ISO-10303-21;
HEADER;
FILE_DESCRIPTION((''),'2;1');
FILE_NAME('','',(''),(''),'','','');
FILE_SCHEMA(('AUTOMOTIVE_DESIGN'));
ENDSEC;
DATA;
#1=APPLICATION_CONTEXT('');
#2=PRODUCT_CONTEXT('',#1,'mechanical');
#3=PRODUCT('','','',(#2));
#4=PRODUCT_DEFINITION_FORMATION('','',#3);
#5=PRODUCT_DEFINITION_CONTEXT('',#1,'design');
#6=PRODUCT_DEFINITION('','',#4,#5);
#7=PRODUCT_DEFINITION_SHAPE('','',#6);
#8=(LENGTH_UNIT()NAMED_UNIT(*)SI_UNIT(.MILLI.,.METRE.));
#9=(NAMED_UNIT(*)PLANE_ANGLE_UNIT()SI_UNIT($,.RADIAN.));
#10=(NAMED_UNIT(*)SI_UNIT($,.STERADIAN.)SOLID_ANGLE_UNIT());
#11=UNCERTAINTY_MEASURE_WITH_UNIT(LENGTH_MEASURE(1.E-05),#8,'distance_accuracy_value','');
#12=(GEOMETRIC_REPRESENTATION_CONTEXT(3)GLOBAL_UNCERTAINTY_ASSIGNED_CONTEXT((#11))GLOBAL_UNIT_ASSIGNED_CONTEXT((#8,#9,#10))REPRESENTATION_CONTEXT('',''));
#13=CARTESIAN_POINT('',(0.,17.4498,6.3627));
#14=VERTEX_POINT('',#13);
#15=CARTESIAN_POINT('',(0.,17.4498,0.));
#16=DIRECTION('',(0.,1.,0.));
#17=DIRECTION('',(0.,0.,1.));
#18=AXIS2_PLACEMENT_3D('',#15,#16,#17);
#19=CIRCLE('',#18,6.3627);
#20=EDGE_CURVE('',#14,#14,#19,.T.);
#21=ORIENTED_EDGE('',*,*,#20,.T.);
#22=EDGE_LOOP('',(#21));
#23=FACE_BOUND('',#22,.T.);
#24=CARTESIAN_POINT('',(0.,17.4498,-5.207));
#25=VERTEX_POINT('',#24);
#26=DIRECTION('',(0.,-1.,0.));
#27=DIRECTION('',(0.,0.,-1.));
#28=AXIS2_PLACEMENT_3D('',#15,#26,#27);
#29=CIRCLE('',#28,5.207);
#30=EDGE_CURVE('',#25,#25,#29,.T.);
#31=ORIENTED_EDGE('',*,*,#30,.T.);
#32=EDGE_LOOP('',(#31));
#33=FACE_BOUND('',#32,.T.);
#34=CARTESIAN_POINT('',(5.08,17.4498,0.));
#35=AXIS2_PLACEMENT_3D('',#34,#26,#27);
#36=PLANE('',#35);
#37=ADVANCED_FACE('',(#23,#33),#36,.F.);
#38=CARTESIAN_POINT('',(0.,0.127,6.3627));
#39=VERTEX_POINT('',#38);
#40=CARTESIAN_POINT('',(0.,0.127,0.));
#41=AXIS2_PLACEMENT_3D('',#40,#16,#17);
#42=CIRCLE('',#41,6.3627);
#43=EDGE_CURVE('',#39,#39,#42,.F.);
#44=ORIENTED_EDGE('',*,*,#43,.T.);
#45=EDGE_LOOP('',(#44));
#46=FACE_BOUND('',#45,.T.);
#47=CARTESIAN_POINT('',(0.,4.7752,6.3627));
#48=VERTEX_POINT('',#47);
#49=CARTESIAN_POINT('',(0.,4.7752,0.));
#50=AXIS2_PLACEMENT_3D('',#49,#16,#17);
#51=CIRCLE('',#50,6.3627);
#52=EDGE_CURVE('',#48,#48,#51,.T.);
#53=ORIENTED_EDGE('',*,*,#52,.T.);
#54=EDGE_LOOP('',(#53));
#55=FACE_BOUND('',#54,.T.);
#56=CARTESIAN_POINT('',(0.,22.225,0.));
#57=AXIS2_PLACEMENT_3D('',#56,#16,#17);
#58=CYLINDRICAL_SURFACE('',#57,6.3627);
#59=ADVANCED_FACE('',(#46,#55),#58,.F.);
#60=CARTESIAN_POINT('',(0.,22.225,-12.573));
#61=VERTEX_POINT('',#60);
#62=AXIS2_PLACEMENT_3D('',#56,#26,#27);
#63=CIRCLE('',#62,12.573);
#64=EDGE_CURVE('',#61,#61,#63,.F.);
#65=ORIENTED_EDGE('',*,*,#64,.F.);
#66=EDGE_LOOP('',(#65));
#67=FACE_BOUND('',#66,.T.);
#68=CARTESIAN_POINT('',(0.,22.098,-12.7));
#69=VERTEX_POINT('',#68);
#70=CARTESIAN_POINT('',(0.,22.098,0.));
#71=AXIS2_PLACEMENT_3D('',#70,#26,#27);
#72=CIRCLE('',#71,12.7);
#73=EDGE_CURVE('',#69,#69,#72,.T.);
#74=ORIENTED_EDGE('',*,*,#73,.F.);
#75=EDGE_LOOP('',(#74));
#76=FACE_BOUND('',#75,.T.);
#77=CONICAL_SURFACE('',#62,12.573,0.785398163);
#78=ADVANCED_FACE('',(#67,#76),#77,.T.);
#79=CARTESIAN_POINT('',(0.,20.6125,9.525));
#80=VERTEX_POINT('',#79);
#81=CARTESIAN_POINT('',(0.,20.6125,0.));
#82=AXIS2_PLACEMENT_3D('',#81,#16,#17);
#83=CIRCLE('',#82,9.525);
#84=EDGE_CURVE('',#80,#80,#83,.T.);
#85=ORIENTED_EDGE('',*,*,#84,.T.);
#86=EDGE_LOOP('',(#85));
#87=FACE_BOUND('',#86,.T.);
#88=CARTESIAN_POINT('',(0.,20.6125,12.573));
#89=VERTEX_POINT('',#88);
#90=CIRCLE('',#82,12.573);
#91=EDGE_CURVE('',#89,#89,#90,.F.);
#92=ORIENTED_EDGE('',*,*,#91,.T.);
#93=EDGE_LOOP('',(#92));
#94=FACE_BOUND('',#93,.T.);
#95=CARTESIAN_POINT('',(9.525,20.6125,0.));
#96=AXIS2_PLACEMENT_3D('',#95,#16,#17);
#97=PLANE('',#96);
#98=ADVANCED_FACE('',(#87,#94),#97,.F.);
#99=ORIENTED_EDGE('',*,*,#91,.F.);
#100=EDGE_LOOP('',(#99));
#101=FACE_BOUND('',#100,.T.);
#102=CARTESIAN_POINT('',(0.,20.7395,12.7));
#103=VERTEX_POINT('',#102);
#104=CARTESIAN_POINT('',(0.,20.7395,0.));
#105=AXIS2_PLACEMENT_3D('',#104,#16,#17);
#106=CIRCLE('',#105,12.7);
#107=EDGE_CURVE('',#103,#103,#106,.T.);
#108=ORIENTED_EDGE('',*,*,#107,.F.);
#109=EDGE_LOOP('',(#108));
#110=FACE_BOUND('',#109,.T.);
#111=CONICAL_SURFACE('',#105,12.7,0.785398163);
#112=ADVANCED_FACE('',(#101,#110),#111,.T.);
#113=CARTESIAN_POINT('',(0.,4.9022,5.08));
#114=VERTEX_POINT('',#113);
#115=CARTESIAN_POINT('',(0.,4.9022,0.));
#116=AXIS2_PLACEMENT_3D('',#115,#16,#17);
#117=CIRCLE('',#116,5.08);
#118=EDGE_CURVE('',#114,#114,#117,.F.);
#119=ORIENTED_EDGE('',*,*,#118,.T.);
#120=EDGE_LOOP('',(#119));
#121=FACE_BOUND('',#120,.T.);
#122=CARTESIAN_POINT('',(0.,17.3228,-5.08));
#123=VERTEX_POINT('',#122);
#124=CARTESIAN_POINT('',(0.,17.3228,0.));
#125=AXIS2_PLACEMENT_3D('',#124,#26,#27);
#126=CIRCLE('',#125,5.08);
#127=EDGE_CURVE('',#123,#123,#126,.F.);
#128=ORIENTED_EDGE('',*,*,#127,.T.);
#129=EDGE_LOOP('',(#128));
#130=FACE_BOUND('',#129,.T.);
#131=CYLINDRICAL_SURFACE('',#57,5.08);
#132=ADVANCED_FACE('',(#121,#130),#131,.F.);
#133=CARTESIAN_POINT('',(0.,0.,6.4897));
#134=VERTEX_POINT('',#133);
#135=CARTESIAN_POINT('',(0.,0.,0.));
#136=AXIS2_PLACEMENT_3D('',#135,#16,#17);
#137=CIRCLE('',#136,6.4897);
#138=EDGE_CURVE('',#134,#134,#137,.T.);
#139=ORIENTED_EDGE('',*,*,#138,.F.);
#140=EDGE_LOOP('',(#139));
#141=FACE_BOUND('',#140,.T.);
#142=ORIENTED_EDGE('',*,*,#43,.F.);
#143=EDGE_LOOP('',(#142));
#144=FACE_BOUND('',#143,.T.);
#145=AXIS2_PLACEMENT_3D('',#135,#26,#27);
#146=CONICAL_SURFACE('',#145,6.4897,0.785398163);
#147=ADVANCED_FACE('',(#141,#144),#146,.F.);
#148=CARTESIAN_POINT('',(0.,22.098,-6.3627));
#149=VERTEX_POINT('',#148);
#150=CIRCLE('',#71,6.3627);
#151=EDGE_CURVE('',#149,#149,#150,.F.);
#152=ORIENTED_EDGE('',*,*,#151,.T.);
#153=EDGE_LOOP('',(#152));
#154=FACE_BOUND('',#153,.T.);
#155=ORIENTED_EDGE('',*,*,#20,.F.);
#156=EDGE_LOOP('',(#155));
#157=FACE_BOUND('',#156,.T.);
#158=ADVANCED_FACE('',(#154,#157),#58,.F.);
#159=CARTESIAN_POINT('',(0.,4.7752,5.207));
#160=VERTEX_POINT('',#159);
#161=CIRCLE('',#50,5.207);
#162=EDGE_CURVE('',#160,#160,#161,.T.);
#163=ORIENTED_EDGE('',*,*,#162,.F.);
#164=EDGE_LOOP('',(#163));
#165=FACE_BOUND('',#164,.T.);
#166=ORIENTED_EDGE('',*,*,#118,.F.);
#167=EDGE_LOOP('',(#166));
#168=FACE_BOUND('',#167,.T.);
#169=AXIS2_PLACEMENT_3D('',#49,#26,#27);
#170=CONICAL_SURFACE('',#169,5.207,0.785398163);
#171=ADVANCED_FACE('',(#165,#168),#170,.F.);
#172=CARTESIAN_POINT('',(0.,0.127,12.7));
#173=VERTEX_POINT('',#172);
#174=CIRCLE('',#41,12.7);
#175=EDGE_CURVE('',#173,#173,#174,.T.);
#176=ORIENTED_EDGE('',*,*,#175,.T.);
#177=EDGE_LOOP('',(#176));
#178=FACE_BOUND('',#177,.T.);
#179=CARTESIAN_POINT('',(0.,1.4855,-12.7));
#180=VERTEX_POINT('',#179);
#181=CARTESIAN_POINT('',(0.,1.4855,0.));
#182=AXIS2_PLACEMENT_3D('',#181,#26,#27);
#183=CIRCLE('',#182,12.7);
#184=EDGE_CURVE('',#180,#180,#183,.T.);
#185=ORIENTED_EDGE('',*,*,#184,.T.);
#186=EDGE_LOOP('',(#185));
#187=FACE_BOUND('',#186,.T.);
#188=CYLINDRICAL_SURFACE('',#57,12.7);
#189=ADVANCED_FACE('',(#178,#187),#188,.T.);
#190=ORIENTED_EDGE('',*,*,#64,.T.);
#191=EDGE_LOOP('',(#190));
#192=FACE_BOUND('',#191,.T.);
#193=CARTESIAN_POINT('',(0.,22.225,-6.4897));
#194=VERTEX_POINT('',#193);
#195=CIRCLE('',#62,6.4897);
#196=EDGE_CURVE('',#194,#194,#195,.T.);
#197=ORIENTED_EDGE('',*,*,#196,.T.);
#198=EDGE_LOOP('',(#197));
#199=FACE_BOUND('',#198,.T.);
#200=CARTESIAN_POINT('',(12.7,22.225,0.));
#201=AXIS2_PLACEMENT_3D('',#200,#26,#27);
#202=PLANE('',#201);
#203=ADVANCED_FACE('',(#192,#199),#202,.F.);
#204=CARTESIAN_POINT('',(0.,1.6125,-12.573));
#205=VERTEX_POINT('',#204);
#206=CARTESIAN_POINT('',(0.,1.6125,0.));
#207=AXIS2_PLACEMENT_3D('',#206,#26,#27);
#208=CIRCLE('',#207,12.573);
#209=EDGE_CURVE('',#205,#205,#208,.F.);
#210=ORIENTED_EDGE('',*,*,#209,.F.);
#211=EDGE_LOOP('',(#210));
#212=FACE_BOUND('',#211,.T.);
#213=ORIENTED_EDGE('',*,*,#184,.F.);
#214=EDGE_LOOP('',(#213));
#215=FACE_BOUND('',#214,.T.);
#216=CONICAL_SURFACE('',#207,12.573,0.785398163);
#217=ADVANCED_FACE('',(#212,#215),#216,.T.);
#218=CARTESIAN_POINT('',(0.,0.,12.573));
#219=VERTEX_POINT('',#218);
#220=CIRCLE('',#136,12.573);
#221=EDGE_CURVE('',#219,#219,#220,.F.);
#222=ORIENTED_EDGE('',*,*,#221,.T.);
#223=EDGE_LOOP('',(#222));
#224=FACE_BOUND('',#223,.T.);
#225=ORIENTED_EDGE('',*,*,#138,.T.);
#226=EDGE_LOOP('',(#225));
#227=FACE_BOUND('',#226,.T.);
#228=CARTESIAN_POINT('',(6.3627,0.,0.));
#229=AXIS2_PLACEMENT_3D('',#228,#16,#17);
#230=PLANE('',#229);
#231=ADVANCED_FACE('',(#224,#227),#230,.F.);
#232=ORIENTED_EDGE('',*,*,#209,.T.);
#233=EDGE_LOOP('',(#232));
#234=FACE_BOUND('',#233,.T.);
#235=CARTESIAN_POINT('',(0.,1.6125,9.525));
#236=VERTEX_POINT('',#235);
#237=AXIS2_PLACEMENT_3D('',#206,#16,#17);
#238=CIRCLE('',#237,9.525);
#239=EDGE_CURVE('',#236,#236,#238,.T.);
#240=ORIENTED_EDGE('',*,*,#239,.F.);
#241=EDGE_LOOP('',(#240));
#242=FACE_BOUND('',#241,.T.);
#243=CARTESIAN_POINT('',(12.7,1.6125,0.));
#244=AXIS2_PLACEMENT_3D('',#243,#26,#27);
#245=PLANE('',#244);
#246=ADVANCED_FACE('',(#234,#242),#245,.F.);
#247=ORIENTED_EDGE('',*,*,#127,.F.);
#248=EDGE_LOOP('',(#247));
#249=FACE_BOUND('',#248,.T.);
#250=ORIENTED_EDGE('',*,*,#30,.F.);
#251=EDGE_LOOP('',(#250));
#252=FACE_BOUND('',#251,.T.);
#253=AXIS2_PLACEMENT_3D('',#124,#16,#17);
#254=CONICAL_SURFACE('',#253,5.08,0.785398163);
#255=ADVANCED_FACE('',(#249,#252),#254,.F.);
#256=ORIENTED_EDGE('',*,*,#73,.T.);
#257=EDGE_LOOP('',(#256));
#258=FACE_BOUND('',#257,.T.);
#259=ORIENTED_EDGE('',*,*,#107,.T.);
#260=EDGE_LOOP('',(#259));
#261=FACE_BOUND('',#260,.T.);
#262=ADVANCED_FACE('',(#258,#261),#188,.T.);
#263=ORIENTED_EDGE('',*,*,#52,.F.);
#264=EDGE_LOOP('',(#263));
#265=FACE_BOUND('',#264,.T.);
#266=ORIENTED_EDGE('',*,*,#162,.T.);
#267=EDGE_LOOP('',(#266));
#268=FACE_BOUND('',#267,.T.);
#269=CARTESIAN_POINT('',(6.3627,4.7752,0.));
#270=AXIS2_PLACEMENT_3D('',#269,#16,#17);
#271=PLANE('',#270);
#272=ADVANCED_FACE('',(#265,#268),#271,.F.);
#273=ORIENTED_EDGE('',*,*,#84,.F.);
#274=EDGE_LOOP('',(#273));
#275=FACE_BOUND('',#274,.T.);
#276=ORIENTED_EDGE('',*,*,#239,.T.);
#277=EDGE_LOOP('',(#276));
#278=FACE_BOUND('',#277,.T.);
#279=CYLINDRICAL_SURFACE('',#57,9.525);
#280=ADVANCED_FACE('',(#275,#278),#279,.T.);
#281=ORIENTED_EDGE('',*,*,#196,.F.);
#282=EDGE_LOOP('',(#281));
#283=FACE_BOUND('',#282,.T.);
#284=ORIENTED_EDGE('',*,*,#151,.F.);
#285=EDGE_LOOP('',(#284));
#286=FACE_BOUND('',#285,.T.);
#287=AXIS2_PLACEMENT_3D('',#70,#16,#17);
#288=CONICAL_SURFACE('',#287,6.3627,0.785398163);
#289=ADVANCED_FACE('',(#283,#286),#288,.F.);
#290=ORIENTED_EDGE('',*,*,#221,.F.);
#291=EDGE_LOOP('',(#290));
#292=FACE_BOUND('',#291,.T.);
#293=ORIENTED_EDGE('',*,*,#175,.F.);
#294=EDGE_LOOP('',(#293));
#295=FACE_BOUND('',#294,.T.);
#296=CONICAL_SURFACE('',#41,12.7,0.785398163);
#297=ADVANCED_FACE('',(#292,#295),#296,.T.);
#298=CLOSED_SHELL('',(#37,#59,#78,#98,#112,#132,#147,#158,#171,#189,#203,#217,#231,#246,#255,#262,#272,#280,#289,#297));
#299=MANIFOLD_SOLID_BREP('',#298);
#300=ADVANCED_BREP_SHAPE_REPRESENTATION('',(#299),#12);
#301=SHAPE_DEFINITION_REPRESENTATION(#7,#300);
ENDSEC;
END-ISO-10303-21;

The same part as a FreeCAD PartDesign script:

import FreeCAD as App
import Part
import Sketcher
Q = App.Units.Quantity


def edges_at(feature, points):
    """Names of the edges that pass closest to the given points."""
    edges = feature.Shape.Edges
    near = lambda p: min(range(len(edges)), key=lambda i: edges[i].distToShape(Part.Vertex(*p))[0])
    return sorted({f"Edge{near(p) + 1}" for p in points})

doc = App.newDocument("Part")
body = doc.addObject("PartDesign::Body", "Body")

# Sketch on XY plane
sketch1 = doc.addObject("Sketcher::SketchObject", "Sketch")
body.addObject(sketch1)
sketch1.AttachmentSupport = (doc.XY_Plane, [""])
sketch1.MapMode = "FlatFace"
sketch1.addGeometry(Part.LineSegment(App.Vector(6.4, 0, 0), App.Vector(12.7, 0, 0)), False)
sketch1.addGeometry(Part.LineSegment(App.Vector(12.7, 0, 0), App.Vector(12.7, 1.6, 0)), False)
sketch1.addGeometry(Part.LineSegment(App.Vector(12.7, 1.6, 0), App.Vector(9.5, 1.6, 0)), False)
sketch1.addGeometry(Part.LineSegment(App.Vector(9.5, 1.6, 0), App.Vector(9.5, 20.6, 0)), False)
sketch1.addGeometry(Part.LineSegment(App.Vector(9.5, 20.6, 0), App.Vector(12.7, 20.6, 0)), False)
sketch1.addGeometry(Part.LineSegment(App.Vector(12.7, 20.6, 0), App.Vector(12.7, 22.2, 0)), False)
sketch1.addGeometry(Part.LineSegment(App.Vector(12.7, 22.2, 0), App.Vector(6.4, 22.2, 0)), False)
sketch1.addGeometry(Part.LineSegment(App.Vector(6.4, 22.2, 0), App.Vector(6.4, 17.4, 0)), False)
sketch1.addGeometry(Part.LineSegment(App.Vector(6.4, 17.4, 0), App.Vector(5.1, 17.4, 0)), False)
sketch1.addGeometry(Part.LineSegment(App.Vector(5.1, 17.4, 0), App.Vector(5.1, 4.8, 0)), False)
sketch1.addGeometry(Part.LineSegment(App.Vector(5.1, 4.8, 0), App.Vector(6.4, 4.8, 0)), False)
sketch1.addGeometry(Part.LineSegment(App.Vector(6.4, 4.8, 0), App.Vector(6.4, 0, 0)), False)
sketch1.addConstraint(Sketcher.Constraint("Coincident", 0, 2, 1, 1))
sketch1.addConstraint(Sketcher.Constraint("Coincident", 1, 2, 2, 1))
sketch1.addConstraint(Sketcher.Constraint("Coincident", 2, 2, 3, 1))
sketch1.addConstraint(Sketcher.Constraint("Coincident", 3, 2, 4, 1))
sketch1.addConstraint(Sketcher.Constraint("Coincident", 4, 2, 5, 1))
sketch1.addConstraint(Sketcher.Constraint("Coincident", 5, 2, 6, 1))
sketch1.addConstraint(Sketcher.Constraint("Coincident", 6, 2, 7, 1))
sketch1.addConstraint(Sketcher.Constraint("Coincident", 7, 2, 8, 1))
sketch1.addConstraint(Sketcher.Constraint("Coincident", 8, 2, 9, 1))
sketch1.addConstraint(Sketcher.Constraint("Coincident", 9, 2, 10, 1))
sketch1.addConstraint(Sketcher.Constraint("Coincident", 10, 2, 11, 1))
sketch1.addConstraint(Sketcher.Constraint("Coincident", 11, 2, 0, 1))
sketch1.addConstraint(Sketcher.Constraint("Horizontal", 0))
sketch1.addConstraint(Sketcher.Constraint("Vertical", 1))
sketch1.addConstraint(Sketcher.Constraint("Horizontal", 2))
sketch1.addConstraint(Sketcher.Constraint("Vertical", 3))
sketch1.addConstraint(Sketcher.Constraint("Horizontal", 4))
sketch1.addConstraint(Sketcher.Constraint("Vertical", 5))
sketch1.addConstraint(Sketcher.Constraint("Horizontal", 6))
sketch1.addConstraint(Sketcher.Constraint("Vertical", 7))
sketch1.addConstraint(Sketcher.Constraint("Horizontal", 8))
sketch1.addConstraint(Sketcher.Constraint("Vertical", 9))
sketch1.addConstraint(Sketcher.Constraint("Horizontal", 10))
sketch1.addConstraint(Sketcher.Constraint("Vertical", 11))
sketch1.addConstraint(Sketcher.Constraint("PointOnObject", 0, 2, -1))
sketch1.addConstraint(Sketcher.Constraint("Vertical", 1, 2, 4, 2))
sketch1.addConstraint(Sketcher.Constraint("Vertical", 7, 2, 10, 2))
sketch1.addConstraint(Sketcher.Constraint("Equal", 1, 5))
sketch1.addConstraint(Sketcher.Constraint("Equal", 7, 11))
sketch1.addConstraint(Sketcher.Constraint("DistanceX", -1, 1, 0, 2, Q("0.5 in")))
sketch1.addConstraint(Sketcher.Constraint("DistanceX", -1, 1, 8, 2, Q("0.2 in")))
sketch1.addConstraint(Sketcher.Constraint("DistanceX", 2, 2, 2, 1, Q("0.125 in")))
sketch1.addConstraint(Sketcher.Constraint("DistanceY", 7, 2, 7, 1, Q("0.188 in")))
sketch1.addConstraint(Sketcher.Constraint("DistanceY", 9, 2, 9, 1, Q("0.499 in")))
sketch1.addConstraint(Sketcher.Constraint("DistanceX", 0, 1, 0, 2, Q("0.2495 in")))
sketch1.addConstraint(Sketcher.Constraint("DistanceY", 1, 1, 1, 2, Q("1.6125 mm")))
revolution = doc.addObject("PartDesign::Revolution", "Revolution")
body.addObject(revolution)
revolution.Profile = sketch1
revolution.ReferenceAxis = (sketch1, ["V_Axis"])
revolution.Angle = 360
doc.recompute()

chamfer = doc.addObject("PartDesign::Chamfer", "Chamfer")
body.addObject(chamfer)
chamfer.Base = (revolution, edges_at(revolution, [
    (0, 4.775, -5.08),
    (0, 17.45, -5.08),
    (0, 22.225, -6.363),
    (0, 22.225, -12.7),
    (0, 20.613, -12.7),
    (0, 1.612, -12.7),
    (0, 0, -12.7),
    (0, 0, -6.363),
]))
chamfer.Size = Q("0.005 in")

doc.recompute()
